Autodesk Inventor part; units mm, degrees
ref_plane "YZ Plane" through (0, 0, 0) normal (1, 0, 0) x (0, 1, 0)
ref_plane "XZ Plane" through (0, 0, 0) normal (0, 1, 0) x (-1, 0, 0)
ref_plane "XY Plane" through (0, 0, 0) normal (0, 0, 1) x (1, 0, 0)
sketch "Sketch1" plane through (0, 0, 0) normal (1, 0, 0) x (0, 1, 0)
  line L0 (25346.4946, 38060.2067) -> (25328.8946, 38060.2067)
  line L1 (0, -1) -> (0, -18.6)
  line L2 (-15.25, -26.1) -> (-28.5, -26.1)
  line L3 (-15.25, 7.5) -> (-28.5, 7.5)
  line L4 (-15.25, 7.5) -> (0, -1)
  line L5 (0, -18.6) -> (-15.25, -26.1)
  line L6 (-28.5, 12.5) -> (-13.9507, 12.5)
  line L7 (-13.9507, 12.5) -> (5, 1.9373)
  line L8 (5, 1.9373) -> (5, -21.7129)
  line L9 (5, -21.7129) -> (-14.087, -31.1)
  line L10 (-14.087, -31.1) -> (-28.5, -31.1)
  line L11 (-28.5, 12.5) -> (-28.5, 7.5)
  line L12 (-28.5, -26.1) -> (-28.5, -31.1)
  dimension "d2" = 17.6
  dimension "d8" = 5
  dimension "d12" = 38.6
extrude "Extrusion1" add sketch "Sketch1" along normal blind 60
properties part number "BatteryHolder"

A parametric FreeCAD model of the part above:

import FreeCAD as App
import Part
import Sketcher
from FreeCAD import Vector
Q = App.Units.Quantity


def add_polygon(sketch, points):
    """Adds a closed chain of lines whose ends are joined by coincident constraints."""
    first, n = sketch.GeometryCount, len(points)
    for a, b in zip(points, points[1:] + points[:1]):
        sketch.addGeometry(Part.LineSegment(App.Vector(*a, 0), App.Vector(*b, 0)), False)
    for i in range(n):
        sketch.addConstraint(Sketcher.Constraint("Coincident", first + i, 2, first + (i + 1) % n, 1))

doc = App.newDocument("Part")
params = doc.addObject("Spreadsheet::Sheet", "Params")
for row, (alias, value) in enumerate([
    ("sketch1_height", "5 mm"),
    ("sketch1_height2", "17.6 mm"),
    ("sketch1_width", "13.25 mm"),
    ("pad1_length", "60 mm"),
], start=1):
    params.set(f"A{row}", alias)
    params.set(f"B{row}", "=" + value)
    params.setAlias(f"B{row}", alias)

body = doc.addObject("PartDesign::Body", "Body")

# Sketch on YZ plane
sketch1 = doc.addObject("Sketcher::SketchObject", "Sketch")
body.addObject(sketch1)
sketch1.AttachmentSupport = (doc.YZ_Plane, [""])
sketch1.MapMode = "FlatFace"
add_polygon(sketch1, [(-15.25, 7.5), (0, -1), (0, -18.6), (-15.25, -26.1), (-28.5, -26.1), (-28.5, -31.1), (-14.087, -31.1), (5, -21.7129), (5, 1.9373), (-13.9507, 12.5), (-28.5, 12.5), (-28.5, 7.5)])  # lines 0-11
sketch1.addConstraint(Sketcher.Constraint("Vertical", 1))
sketch1.addConstraint(Sketcher.Constraint("Horizontal", 3))
sketch1.addConstraint(Sketcher.Constraint("Vertical", 4))
sketch1.addConstraint(Sketcher.Constraint("Horizontal", 5))
sketch1.addConstraint(Sketcher.Constraint("Vertical", 7))
sketch1.addConstraint(Sketcher.Constraint("Horizontal", 9))
sketch1.addConstraint(Sketcher.Constraint("Vertical", 10))
sketch1.addConstraint(Sketcher.Constraint("Horizontal", 11))
sketch1.addConstraint(Sketcher.Constraint("PointOnObject", 0, 2, -2))
sketch1.addConstraint(Sketcher.Constraint("Parallel", 2, 6))
sketch1.addConstraint(Sketcher.Constraint("Parallel", 0, 8))
sketch1.addConstraint(Sketcher.Constraint("Vertical", 4, 2, 9, 2))
sketch1.addConstraint(Sketcher.Constraint("Vertical", 2, 2, 11, 2))
sketch1.addConstraint(Sketcher.Constraint("Equal", 4, 10))
sketch1.addConstraint(Sketcher.Constraint("DistanceY", 4, 2, 4, 1, Q("5 mm")))
sketch1.addConstraint(Sketcher.Constraint("DistanceY", 1, 2, 1, 1, Q("17.6 mm")))
sketch1.addConstraint(Sketcher.Constraint("DistanceX", -1, 1, 6, 2, Q("5 mm")))
sketch1.addConstraint(Sketcher.Constraint("DistanceY", 2, 2, 8, 2, Q("38.6 mm")))
sketch1.addConstraint(Sketcher.Constraint("DistanceY", 0, 2, -1, 1, Q("1 mm")))
sketch1.addConstraint(Sketcher.Constraint("DistanceX", 3, 2, 3, 1, Q("13.25 mm")))
sketch1.addConstraint(Sketcher.Constraint("DistanceY", 2, 2, -1, 1, Q("26.1 mm")))
sketch1.addConstraint(Sketcher.Constraint("DistanceX", 3, 2, -1, 1, Q("28.5 mm")))
sketch1.addConstraint(Sketcher.Constraint("DistanceX", 5, 1, 5, 2, Q("14.413 mm")))
sketch1.addConstraint(Sketcher.Constraint("DistanceX", 9, 2, 9, 1, Q("14.5493 mm")))
sketch1.setExpression("Constraints[26]", "Params.sketch1_height")
sketch1.setExpression("Constraints[27]", "Params.sketch1_height2")
sketch1.setExpression("Constraints[31]", "Params.sketch1_width")
pad1 = doc.addObject("PartDesign::Pad", "Pad")
body.addObject(pad1)
pad1.Profile = sketch1
pad1.setExpression("Length", "Params.pad1_length")

doc.recompute()
